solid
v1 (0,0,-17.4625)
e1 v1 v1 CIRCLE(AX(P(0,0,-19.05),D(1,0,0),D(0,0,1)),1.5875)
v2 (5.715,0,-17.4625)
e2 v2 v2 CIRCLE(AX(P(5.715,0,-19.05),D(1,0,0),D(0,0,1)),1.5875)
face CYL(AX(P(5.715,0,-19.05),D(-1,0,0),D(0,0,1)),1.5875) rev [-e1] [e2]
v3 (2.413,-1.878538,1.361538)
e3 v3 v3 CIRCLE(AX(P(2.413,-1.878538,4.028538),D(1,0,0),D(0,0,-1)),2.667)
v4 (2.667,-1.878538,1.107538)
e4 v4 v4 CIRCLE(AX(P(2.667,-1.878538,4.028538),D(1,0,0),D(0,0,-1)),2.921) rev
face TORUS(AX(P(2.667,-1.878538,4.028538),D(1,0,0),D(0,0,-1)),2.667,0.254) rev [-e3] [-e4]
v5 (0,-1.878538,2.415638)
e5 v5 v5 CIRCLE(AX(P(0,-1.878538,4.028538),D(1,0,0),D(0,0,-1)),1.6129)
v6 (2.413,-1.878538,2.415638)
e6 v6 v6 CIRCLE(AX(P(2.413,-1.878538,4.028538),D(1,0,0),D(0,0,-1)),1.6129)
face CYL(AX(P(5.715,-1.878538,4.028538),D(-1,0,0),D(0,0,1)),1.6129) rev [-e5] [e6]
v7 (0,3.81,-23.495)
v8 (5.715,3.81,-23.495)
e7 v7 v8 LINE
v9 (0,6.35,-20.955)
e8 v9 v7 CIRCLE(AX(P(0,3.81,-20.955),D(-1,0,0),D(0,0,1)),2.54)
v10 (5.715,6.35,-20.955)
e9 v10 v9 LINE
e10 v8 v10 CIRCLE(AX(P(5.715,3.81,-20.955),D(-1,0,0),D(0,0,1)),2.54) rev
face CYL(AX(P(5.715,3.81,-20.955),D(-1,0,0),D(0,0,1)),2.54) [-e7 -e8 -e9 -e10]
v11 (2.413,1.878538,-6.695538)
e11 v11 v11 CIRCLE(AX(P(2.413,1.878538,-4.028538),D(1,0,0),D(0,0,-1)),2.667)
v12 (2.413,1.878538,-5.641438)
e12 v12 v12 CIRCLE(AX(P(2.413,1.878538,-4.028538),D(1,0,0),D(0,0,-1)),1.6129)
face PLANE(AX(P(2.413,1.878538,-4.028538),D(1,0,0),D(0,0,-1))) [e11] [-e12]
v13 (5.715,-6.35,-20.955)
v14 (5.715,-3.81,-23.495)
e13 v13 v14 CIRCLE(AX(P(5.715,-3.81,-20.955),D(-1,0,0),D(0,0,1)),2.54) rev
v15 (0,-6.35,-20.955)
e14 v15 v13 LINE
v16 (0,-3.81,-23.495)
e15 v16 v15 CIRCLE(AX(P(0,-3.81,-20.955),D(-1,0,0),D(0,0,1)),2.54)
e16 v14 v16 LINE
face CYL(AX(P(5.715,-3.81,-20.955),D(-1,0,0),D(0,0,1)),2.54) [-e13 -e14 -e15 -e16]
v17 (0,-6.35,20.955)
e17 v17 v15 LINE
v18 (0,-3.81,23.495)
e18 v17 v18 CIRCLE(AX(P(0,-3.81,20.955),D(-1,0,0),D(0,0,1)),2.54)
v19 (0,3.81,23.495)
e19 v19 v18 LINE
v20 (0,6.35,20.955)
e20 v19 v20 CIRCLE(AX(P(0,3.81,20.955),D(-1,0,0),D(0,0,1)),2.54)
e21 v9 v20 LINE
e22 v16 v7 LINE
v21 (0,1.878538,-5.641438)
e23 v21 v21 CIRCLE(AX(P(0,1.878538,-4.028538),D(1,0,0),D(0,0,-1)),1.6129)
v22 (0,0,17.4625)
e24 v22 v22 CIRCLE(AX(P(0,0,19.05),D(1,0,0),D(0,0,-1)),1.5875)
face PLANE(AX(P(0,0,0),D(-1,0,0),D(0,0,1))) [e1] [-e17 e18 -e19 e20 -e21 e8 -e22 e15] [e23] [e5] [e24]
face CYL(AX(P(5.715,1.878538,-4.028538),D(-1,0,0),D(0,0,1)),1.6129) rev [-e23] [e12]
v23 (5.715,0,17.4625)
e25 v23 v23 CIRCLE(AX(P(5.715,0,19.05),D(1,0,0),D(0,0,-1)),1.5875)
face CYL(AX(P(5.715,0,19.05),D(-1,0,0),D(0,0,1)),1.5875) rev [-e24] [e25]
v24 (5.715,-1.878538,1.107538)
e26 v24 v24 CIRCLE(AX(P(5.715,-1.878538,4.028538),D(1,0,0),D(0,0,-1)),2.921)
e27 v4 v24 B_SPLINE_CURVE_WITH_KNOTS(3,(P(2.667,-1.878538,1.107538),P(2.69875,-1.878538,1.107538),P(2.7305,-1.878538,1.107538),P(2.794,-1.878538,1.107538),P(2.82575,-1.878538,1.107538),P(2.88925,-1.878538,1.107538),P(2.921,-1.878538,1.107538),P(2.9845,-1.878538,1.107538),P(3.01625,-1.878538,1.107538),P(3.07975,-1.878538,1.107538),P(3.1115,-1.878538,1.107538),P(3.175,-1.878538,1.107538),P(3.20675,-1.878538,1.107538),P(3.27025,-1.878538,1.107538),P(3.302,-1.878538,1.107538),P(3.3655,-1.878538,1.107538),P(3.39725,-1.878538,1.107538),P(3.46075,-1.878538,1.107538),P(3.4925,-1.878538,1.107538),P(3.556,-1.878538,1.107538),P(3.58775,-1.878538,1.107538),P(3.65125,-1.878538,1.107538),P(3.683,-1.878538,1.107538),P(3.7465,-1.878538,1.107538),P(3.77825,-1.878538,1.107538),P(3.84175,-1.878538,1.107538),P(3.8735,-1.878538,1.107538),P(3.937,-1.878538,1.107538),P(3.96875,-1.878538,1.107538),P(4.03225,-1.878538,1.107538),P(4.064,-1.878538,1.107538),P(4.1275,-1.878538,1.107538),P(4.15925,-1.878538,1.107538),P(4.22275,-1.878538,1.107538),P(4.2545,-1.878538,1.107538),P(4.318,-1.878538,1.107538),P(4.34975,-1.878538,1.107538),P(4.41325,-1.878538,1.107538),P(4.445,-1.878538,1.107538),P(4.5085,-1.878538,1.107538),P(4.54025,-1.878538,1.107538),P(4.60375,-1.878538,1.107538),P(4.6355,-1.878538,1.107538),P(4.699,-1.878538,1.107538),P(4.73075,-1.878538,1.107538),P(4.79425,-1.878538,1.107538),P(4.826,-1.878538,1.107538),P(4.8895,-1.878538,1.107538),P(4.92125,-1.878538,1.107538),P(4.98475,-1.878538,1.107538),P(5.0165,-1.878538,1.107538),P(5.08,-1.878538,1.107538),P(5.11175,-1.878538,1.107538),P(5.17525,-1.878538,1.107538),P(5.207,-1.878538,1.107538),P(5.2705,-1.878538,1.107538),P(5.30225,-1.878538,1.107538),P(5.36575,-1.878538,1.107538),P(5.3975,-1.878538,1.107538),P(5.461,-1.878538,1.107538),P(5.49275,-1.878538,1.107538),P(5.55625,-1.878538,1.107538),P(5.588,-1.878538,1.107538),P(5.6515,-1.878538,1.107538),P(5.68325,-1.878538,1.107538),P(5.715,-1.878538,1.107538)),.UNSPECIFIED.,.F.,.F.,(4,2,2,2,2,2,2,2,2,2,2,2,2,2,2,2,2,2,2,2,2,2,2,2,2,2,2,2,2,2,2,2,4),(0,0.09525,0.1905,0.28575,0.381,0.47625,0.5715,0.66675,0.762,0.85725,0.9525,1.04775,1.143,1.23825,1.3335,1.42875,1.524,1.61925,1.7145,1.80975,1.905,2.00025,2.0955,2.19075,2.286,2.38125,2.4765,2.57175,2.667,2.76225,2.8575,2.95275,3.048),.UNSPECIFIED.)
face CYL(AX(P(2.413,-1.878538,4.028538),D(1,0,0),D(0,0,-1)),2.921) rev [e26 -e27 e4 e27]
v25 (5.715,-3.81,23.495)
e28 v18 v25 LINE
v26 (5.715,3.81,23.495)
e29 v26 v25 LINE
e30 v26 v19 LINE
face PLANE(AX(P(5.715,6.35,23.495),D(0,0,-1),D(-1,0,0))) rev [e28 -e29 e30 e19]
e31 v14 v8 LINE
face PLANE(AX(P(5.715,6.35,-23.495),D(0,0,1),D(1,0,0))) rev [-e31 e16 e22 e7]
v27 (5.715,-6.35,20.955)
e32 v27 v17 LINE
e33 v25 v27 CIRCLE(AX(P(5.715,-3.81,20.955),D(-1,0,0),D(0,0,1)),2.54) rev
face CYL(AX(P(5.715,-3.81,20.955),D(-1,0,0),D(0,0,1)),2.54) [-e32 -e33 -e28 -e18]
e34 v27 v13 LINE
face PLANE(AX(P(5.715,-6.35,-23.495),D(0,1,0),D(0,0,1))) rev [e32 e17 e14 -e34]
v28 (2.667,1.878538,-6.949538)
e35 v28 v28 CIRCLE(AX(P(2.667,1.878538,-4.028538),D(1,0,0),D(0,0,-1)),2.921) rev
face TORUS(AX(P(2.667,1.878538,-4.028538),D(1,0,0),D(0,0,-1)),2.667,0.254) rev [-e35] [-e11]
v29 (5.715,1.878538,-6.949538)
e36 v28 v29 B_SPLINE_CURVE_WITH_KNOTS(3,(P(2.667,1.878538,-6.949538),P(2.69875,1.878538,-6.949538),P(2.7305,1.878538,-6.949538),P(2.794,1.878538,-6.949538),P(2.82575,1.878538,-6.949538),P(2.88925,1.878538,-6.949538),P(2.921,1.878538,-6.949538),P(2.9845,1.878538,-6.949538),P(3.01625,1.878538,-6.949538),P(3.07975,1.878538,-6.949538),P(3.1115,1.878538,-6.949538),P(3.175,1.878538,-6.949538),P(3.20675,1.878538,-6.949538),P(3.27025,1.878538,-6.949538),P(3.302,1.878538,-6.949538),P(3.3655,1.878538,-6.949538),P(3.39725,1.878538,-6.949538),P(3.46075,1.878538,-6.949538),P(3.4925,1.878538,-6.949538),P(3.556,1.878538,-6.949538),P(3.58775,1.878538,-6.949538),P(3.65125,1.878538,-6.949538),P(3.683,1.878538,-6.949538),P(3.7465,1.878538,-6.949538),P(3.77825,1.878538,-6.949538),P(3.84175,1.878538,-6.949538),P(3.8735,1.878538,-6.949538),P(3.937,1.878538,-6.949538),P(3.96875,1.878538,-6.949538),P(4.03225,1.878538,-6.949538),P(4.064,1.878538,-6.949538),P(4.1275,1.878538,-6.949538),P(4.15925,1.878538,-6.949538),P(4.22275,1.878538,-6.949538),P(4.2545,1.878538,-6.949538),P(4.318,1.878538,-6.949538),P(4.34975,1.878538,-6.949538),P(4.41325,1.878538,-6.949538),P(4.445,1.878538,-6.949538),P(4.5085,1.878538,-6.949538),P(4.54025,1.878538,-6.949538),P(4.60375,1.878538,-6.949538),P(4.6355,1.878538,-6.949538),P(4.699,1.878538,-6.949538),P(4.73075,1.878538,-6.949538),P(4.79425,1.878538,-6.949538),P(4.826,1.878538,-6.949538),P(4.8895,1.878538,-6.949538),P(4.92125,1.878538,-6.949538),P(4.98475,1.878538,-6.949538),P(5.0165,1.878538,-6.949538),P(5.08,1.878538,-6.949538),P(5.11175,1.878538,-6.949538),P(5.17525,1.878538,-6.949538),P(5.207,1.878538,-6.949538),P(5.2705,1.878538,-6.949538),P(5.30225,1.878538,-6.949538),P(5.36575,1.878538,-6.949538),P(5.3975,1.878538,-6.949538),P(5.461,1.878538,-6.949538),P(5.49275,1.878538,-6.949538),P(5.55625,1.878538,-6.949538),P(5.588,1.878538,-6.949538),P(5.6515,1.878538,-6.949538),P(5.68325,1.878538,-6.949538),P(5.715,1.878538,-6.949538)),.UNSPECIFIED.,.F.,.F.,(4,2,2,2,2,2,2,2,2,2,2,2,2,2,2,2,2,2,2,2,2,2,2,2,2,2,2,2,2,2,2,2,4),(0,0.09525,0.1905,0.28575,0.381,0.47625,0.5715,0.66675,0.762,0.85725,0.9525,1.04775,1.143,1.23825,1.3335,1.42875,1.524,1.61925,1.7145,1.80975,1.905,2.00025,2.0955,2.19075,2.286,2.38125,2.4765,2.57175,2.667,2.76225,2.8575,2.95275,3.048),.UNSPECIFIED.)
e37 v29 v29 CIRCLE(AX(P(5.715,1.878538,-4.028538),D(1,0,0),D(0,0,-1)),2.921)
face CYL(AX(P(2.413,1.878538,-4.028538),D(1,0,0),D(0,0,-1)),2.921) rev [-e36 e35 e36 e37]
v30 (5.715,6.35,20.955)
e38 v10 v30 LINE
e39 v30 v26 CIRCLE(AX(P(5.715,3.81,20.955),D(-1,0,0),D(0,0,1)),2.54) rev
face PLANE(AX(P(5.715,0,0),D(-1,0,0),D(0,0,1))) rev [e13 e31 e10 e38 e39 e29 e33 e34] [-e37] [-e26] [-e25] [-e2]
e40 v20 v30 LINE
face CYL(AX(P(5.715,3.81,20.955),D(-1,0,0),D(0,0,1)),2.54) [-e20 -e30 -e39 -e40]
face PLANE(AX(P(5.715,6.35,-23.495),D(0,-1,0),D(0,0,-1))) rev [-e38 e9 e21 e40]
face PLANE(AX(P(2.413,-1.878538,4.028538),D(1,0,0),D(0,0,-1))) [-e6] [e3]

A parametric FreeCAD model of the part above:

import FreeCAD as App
import Part
import Sketcher

V = App.Vector
Q = App.Units.Quantity


def edges_at(feature, points):
    """Names of the edges that pass closest to the given points."""
    edges = feature.Shape.Edges
    near = lambda p: min(range(len(edges)), key=lambda i: edges[i].distToShape(Part.Vertex(*p))[0])
    return sorted({f"Edge{near(p) + 1}" for p in points})

doc = App.newDocument("Part")
body = doc.addObject("PartDesign::Body", "Body")

# Sketch on YZ plane
sketch1 = body.newObject("Sketcher::SketchObject", "Sketch")
sketch1.AttachmentSupport = (doc.getObject("YZ_Plane"), [""])
sketch1.MapMode = "FlatFace"
sketch1.addGeometry(Part.LineSegment(V(6.35, 23.495, 0), V(-6.35, 23.495, 0)), False)
sketch1.addGeometry(Part.LineSegment(V(-6.35, 23.495, 0), V(-6.35, -23.495, 0)), False)
sketch1.addGeometry(Part.LineSegment(V(-6.35, -23.495, 0), V(6.35, -23.495, 0)), False)
sketch1.addGeometry(Part.LineSegment(V(6.35, -23.495, 0), V(6.35, 23.495, 0)), False)
sketch1.addGeometry(Part.Circle(V(-1.878538, 4.028538, 0), V(0, 0, 1), 1.6129), False)
sketch1.addGeometry(Part.Circle(V(0, 19.05, 0), V(0, 0, 1), 1.5875), False)
sketch1.addGeometry(Part.Circle(V(0, -19.05, 0), V(0, 0, 1), 1.5875), False)
sketch1.addGeometry(Part.Circle(V(1.878538, -4.028538, 0), V(0, 0, 1), 1.6129), False)
sketch1.addConstraint(Sketcher.Constraint("Coincident", 0, 2, 1, 1))
sketch1.addConstraint(Sketcher.Constraint("Coincident", 1, 2, 2, 1))
sketch1.addConstraint(Sketcher.Constraint("Coincident", 2, 2, 3, 1))
sketch1.addConstraint(Sketcher.Constraint("Coincident", 3, 2, 0, 1))
sketch1.addConstraint(Sketcher.Constraint("Horizontal", 0))
sketch1.addConstraint(Sketcher.Constraint("Vertical", 1))
sketch1.addConstraint(Sketcher.Constraint("Horizontal", 2))
sketch1.addConstraint(Sketcher.Constraint("Vertical", 3))
sketch1.addConstraint(Sketcher.Constraint("Equal", 5, 6))
sketch1.addConstraint(Sketcher.Constraint("Equal", 4, 7))
sketch1.addConstraint(Sketcher.Constraint("Symmetric", 5, 3, 6, 3, -1, 1))
sketch1.addConstraint(Sketcher.Constraint("Symmetric", 4, 3, 7, 3, -1, 1))
sketch1.addConstraint(Sketcher.Constraint("Symmetric", 0, 2, 2, 2, -1, 1))
sketch1.addConstraint(Sketcher.Constraint("PointOnObject", 5, 3, -2))
sketch1.addConstraint(Sketcher.Constraint("Diameter", 4, Q("0.127 in")))
sketch1.addConstraint(Sketcher.Constraint("Diameter", 5, Q("0.125 in")))
sketch1.addConstraint(Sketcher.Constraint("DistanceX", 0, 2, 0, 1, Q("0.5 in")))
sketch1.addConstraint(Sketcher.Constraint("DistanceY", 1, 2, 1, 1, Q("1.85 in")))
sketch1.addConstraint(Sketcher.Constraint("DistanceY", 6, 3, 5, 3, Q("1.5 in")))
sketch1.addConstraint(Sketcher.Constraint("DistanceX", 4, 3, -1, 1, Q("1.878538 mm")))
sketch1.addConstraint(Sketcher.Constraint("DistanceY", -1, 1, 4, 3, Q("4.028538 mm")))
pad1 = body.newObject("PartDesign::Pad", "Pad")
pad1.Profile = sketch1
pad1.Length = Q("0.225 in")

# Sketch on YZ plane
sketch2 = body.newObject("Sketcher::SketchObject", "Sketch001")
sketch2.AttachmentSupport = (doc.getObject("YZ_Plane"), [""])
sketch2.MapMode = "FlatFace"
sketch2.AttachmentOffset = App.Placement(V(0, 0, 0.225 * 25.4), App.Rotation())
sketch2.addGeometry(Part.Circle(V(-1.878538, 4.028538, 0), V(0, 0, 1), 2.921), False)
sketch2.addGeometry(Part.Circle(V(1.878538, -4.028538, 0), V(0, 0, 1), 2.921), False)
sketch2.addConstraint(Sketcher.Constraint("Equal", 0, 1))
sketch2.addConstraint(Sketcher.Constraint("Symmetric", 0, 3, 1, 3, -1, 1))
sketch2.addConstraint(Sketcher.Constraint("Diameter", 0, Q("0.23 in")))
sketch2.addConstraint(Sketcher.Constraint("DistanceX", 0, 3, -1, 1, Q("1.878538 mm")))
sketch2.addConstraint(Sketcher.Constraint("DistanceY", -1, 1, 0, 3, Q("4.028538 mm")))
pocket1 = body.newObject("PartDesign::Pocket", "Pocket")
pocket1.Profile = sketch2
pocket1.Length = Q("0.13 in")
doc.recompute()

fillet = body.newObject("PartDesign::Fillet", "Fillet")
fillet.Base = (pocket1, edges_at(pocket1, [
    (2.857, 6.35, 23.495),
    (2.857, 6.35, -23.495),
    (2.857, -6.35, -23.495),
    (2.857, -6.35, 23.495),
]))
fillet.Radius = Q("0.1 in")
doc.recompute()

fillet2 = body.newObject("PartDesign::Fillet", "Fillet001")
fillet2.Base = (fillet, edges_at(fillet, [(2.413, -1.879, 6.95), (2.413, 1.879, -1.108)]))
fillet2.Radius = Q("0.01 in")

doc.recompute()
